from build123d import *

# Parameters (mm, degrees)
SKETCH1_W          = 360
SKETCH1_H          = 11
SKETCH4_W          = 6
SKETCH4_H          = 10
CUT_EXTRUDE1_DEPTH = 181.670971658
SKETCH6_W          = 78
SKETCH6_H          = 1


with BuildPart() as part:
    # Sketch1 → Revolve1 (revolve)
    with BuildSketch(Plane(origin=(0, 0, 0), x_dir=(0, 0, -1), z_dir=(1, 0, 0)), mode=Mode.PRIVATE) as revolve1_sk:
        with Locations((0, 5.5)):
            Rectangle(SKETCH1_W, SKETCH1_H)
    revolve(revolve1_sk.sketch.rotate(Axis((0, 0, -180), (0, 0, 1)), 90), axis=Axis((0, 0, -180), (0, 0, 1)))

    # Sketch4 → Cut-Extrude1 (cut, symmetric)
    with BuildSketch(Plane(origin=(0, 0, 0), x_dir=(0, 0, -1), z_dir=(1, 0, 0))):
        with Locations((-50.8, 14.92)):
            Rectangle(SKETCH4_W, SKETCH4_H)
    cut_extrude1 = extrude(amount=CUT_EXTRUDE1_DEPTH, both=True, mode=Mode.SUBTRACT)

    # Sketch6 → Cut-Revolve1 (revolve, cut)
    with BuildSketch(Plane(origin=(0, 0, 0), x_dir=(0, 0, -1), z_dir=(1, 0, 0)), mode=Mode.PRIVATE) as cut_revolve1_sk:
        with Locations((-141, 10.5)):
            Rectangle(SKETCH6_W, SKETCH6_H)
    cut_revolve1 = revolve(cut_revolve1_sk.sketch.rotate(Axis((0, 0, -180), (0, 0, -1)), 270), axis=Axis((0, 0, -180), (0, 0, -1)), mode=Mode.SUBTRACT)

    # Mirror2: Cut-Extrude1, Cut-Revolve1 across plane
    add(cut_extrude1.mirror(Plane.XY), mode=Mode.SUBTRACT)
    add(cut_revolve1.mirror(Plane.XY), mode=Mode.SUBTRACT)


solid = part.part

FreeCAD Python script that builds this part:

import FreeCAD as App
import Part
import Sketcher
from FreeCAD import Vector
Q = App.Units.Quantity


def add_polygon(sketch, points):
    """Adds a closed chain of lines whose ends are joined by coincident constraints."""
    first, n = sketch.GeometryCount, len(points)
    for a, b in zip(points, points[1:] + points[:1]):
        sketch.addGeometry(Part.LineSegment(App.Vector(*a, 0), App.Vector(*b, 0)), False)
    for i in range(n):
        sketch.addConstraint(Sketcher.Constraint("Coincident", first + i, 2, first + (i + 1) % n, 1))

doc = App.newDocument("Part")
body = doc.addObject("PartDesign::Body", "Body")

sketch1 = body.newObject("Sketcher::SketchObject", "Sketch")
sketch1.AttachmentSupport = (doc.getObject("YZ_Plane"), [""])
sketch1.MapMode = "FlatFace"
add_polygon(sketch1, [(11, 180), (0, 180), (0, -180), (11, -180)])
sketch1.addConstraint(Sketcher.Constraint("Horizontal", 0))
sketch1.addConstraint(Sketcher.Constraint("Vertical", 1))
sketch1.addConstraint(Sketcher.Constraint("Horizontal", 2))
sketch1.addConstraint(Sketcher.Constraint("Vertical", 3))
sketch1.addConstraint(Sketcher.Constraint("Symmetric", 0, 2, 1, 2, -1, 1))
sketch1.addConstraint(Sketcher.Constraint("DistanceX", 0, 2, 0, 1, Q("11 mm")))
sketch1.addConstraint(Sketcher.Constraint("DistanceY", 1, 2, 1, 1, Q("360 mm")))
revolution = body.newObject("PartDesign::Revolution", "Revolution")
revolution.Profile = sketch1
revolution.ReferenceAxis = (sketch1, ["V_Axis"])
revolution.Angle = 360

sketch2 = body.newObject("Sketcher::SketchObject", "Sketch001")
sketch2.AttachmentSupport = (doc.getObject("YZ_Plane"), [""])
sketch2.MapMode = "FlatFace"
add_polygon(sketch2, [(20, 54), (10, 54), (10, 48), (20, 48)])
sketch2.addConstraint(Sketcher.Constraint("Horizontal", 0))
sketch2.addConstraint(Sketcher.Constraint("Vertical", 1))
sketch2.addConstraint(Sketcher.Constraint("Horizontal", 2))
sketch2.addConstraint(Sketcher.Constraint("Vertical", 3))
sketch2.addConstraint(Sketcher.Constraint("DistanceX", 0, 2, 0, 1, Q("10 mm")))
sketch2.addConstraint(Sketcher.Constraint("DistanceY", 1, 2, 1, 1, Q("6 mm")))
sketch2.addConstraint(Sketcher.Constraint("DistanceY", -1, 1, 0, 2, Q("53.8 mm")))
sketch2.addConstraint(Sketcher.Constraint("DistanceX", -1, 1, 0, 2, Q("9.92 mm")))
pocket1 = body.newObject("PartDesign::Pocket", "Pocket")
pocket1.Profile = sketch2
pocket1.Length = 363.341943
pocket1.Midplane = True

sketch3 = body.newObject("Sketcher::SketchObject", "Sketch002")
sketch3.AttachmentSupport = (doc.getObject("YZ_Plane"), [""])
sketch3.MapMode = "FlatFace"
add_polygon(sketch3, [(11, 180), (10, 180), (10, 102), (11, 102)])
sketch3.addConstraint(Sketcher.Constraint("Horizontal", 0))
sketch3.addConstraint(Sketcher.Constraint("Vertical", 1))
sketch3.addConstraint(Sketcher.Constraint("Horizontal", 2))
sketch3.addConstraint(Sketcher.Constraint("Vertical", 3))
sketch3.addConstraint(Sketcher.Constraint("DistanceX", 0, 2, 0, 1, Q("1 mm")))
sketch3.addConstraint(Sketcher.Constraint("DistanceY", 1, 2, 1, 1, Q("78 mm")))
sketch3.addConstraint(Sketcher.Constraint("DistanceX", -1, 1, 0, 2, Q("10 mm")))
sketch3.addConstraint(Sketcher.Constraint("DistanceY", -1, 1, 0, 2, Q("180 mm")))
groove = body.newObject("PartDesign::Groove", "Groove")
groove.Profile = sketch3
groove.ReferenceAxis = (sketch3, ["V_Axis"])
groove.Angle = 360
doc.recompute()

mirrored = body.newObject("PartDesign::Mirrored", "Mirrored")
mirrored.Originals = [pocket1, groove]
mirrored.MirrorPlane = (doc.getObject("XY_Plane"), [""])
body.Tip = mirrored

doc.recompute()
